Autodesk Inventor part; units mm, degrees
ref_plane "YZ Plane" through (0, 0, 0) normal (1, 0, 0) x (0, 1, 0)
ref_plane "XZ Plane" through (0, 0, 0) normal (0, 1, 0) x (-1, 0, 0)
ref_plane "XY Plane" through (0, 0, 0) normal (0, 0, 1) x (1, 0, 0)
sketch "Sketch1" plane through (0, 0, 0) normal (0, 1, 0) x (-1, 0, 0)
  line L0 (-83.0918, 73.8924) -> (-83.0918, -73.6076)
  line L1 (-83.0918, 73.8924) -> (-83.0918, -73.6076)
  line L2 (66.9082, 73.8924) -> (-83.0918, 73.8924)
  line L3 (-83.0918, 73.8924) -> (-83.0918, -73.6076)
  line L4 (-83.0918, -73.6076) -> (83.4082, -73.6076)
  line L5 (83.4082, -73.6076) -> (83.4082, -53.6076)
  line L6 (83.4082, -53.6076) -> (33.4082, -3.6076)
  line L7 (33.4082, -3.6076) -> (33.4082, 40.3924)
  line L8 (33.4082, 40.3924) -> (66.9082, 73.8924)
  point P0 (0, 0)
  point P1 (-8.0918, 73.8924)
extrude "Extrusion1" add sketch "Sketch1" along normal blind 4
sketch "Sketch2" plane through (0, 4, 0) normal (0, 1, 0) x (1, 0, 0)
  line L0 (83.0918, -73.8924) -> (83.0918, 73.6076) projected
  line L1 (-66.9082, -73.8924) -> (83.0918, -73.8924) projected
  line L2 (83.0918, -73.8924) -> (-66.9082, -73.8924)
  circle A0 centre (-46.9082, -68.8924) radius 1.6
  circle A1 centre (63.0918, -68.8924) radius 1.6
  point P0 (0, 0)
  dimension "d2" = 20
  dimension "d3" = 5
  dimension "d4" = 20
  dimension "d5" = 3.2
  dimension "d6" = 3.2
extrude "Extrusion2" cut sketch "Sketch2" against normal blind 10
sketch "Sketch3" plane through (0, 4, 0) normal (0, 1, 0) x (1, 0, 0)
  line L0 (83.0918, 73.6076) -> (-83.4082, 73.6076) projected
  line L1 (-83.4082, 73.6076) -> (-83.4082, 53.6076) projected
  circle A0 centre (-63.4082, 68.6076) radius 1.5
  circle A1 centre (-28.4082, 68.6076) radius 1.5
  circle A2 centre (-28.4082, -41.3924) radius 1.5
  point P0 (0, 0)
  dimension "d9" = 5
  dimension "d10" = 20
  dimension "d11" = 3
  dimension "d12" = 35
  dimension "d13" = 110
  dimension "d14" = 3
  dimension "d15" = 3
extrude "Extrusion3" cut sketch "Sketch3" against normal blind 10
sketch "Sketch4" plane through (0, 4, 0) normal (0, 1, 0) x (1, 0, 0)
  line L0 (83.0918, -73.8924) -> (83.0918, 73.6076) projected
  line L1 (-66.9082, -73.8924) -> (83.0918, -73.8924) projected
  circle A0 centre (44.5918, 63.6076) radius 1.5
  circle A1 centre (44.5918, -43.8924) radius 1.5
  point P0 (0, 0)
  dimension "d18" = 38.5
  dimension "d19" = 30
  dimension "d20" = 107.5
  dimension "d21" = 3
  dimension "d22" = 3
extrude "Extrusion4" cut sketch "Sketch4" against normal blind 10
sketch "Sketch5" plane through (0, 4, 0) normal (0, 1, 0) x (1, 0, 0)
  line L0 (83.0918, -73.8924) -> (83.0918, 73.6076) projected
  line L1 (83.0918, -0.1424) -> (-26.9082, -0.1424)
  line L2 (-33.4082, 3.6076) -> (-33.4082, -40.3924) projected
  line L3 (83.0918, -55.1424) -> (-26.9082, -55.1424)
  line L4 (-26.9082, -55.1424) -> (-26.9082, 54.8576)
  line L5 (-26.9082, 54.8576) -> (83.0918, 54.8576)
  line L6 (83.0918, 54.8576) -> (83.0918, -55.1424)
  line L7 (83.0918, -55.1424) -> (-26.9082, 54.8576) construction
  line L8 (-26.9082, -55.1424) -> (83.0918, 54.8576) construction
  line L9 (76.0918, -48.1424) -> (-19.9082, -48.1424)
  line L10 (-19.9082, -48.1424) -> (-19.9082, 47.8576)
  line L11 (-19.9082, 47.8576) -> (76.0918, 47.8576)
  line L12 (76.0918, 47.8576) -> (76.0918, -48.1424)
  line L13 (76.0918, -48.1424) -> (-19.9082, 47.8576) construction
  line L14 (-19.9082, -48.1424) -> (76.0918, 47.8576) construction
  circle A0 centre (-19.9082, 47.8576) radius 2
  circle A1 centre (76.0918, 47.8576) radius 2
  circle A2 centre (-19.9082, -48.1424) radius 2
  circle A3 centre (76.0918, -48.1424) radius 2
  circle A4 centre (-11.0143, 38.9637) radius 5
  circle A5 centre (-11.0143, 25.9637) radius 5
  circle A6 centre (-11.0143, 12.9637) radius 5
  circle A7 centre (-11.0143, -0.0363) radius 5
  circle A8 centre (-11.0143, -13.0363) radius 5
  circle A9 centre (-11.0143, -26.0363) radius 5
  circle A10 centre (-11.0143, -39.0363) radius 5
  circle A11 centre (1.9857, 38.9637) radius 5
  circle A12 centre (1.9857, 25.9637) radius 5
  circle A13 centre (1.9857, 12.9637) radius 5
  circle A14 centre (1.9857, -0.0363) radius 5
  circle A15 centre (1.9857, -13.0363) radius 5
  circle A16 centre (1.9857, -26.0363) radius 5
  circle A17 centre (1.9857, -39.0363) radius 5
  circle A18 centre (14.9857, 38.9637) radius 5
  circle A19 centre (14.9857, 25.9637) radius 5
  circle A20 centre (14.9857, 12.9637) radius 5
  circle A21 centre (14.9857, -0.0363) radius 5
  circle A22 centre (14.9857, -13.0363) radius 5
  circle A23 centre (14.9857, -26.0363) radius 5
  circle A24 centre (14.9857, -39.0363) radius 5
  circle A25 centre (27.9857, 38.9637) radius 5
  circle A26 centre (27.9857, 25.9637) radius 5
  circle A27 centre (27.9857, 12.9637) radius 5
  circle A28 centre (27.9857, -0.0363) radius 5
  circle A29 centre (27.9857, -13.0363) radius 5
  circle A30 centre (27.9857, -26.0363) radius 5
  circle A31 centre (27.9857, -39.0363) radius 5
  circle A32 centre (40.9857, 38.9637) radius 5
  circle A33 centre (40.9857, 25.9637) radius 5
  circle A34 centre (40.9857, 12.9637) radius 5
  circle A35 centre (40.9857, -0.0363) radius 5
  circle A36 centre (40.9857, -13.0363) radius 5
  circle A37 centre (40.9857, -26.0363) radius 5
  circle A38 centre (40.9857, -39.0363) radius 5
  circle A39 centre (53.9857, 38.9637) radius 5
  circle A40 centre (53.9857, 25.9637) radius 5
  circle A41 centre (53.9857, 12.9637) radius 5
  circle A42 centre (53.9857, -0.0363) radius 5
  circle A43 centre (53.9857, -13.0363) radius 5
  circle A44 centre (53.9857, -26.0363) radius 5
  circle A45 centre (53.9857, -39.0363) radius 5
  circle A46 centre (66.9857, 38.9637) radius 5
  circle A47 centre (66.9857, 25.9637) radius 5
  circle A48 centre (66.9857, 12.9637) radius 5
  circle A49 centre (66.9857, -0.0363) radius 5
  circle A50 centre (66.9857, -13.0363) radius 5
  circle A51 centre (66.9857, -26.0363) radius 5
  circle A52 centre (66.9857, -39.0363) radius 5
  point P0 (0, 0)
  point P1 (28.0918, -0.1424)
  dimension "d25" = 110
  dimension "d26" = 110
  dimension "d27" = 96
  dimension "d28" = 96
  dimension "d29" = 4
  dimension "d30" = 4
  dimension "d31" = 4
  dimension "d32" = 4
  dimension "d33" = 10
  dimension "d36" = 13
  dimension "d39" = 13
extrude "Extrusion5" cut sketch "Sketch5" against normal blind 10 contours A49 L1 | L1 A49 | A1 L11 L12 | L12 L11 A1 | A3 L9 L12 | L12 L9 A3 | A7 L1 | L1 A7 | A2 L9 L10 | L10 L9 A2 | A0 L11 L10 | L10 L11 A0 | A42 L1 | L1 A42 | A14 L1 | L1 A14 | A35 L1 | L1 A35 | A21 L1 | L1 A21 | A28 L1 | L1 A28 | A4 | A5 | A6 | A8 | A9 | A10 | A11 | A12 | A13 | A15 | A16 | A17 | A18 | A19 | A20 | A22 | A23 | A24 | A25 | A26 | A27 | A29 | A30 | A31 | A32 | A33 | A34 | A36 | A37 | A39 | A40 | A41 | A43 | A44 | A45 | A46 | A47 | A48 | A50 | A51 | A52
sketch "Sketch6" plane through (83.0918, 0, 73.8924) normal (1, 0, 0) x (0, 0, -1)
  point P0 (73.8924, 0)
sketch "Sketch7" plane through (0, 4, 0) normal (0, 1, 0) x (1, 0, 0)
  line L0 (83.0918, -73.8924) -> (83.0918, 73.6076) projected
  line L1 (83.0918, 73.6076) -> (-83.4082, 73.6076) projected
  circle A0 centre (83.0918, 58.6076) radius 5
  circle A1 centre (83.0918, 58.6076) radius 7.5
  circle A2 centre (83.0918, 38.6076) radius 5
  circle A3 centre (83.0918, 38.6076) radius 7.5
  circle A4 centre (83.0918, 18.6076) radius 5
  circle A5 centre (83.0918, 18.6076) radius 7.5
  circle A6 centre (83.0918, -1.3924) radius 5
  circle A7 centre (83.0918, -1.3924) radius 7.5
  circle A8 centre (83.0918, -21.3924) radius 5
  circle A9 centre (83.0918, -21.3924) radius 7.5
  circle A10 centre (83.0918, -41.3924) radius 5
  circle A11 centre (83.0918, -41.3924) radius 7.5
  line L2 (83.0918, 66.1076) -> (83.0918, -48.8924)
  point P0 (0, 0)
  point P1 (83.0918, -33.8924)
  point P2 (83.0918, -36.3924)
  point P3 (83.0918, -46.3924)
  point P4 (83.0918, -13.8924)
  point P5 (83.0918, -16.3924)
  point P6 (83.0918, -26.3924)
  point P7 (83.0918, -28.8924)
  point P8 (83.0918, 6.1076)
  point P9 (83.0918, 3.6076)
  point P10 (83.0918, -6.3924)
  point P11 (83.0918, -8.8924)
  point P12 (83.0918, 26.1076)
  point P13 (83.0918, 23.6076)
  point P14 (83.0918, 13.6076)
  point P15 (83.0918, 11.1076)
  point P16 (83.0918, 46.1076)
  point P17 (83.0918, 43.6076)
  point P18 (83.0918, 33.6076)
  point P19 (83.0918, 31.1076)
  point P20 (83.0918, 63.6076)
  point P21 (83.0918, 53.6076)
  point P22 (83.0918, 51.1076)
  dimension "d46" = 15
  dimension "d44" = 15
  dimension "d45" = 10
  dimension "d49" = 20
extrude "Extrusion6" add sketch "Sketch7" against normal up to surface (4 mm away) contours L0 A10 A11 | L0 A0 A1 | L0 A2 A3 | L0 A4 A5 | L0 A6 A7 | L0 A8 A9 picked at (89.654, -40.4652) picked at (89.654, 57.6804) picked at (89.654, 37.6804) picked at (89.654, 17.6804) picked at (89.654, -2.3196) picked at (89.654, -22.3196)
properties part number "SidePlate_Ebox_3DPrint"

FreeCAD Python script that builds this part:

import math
import FreeCAD as App
import Part
import Sketcher
Q = App.Units.Quantity


def add_polygon(sketch, points):
    """Adds a closed chain of lines whose ends are joined by coincident constraints."""
    first, n = sketch.GeometryCount, len(points)
    for a, b in zip(points, points[1:] + points[:1]):
        sketch.addGeometry(Part.LineSegment(App.Vector(*a, 0), App.Vector(*b, 0)), False)
    for i in range(n):
        sketch.addConstraint(Sketcher.Constraint("Coincident", first + i, 2, first + (i + 1) % n, 1))

doc = App.newDocument("Part")
body = doc.addObject("PartDesign::Body", "Body")

sketch1 = body.newObject("Sketcher::SketchObject", "Sketch")
sketch1.AttachmentSupport = (doc.getObject("XZ_Plane"), [""])
sketch1.MapMode = "FlatFace"
add_polygon(sketch1, [(-66.9082, 73.8924), (83.0918, 73.8924), (83.0918, -73.6076), (-83.4082, -73.6076), (-83.4082, -53.6076), (-33.4082, -3.6076), (-33.4082, 40.3924)])
sketch1.addConstraint(Sketcher.Constraint("Horizontal", 0))
sketch1.addConstraint(Sketcher.Constraint("Vertical", 1))
sketch1.addConstraint(Sketcher.Constraint("Horizontal", 2))
sketch1.addConstraint(Sketcher.Constraint("Vertical", 3))
sketch1.addConstraint(Sketcher.Constraint("Vertical", 5))
sketch1.addConstraint(Sketcher.Constraint("Perpendicular", 4, 6))
sketch1.addConstraint(Sketcher.Constraint("DistanceX", 0, 1, 0, 2, Q("150 mm")))
sketch1.addConstraint(Sketcher.Constraint("DistanceY", 3, 1, 3, 2, Q("20 mm")))
sketch1.addConstraint(Sketcher.Constraint("DistanceY", 5, 1, 5, 2, Q("44 mm")))
sketch1.addConstraint(Sketcher.Constraint("Angle", 4, Q("45 deg")))
sketch1.addConstraint(Sketcher.Constraint("DistanceX", 2, 2, 2, 1, Q("166.5 mm")))
sketch1.addConstraint(Sketcher.Constraint("DistanceY", 1, 2, 1, 1, Q("147.5 mm")))
sketch1.addConstraint(Sketcher.Constraint("DistanceX", -1, 1, 0, 2, Q("83.0918 mm")))
sketch1.addConstraint(Sketcher.Constraint("DistanceY", -1, 1, 0, 2, Q("73.8924 mm")))
pad1 = body.newObject("PartDesign::Pad", "Pad")
pad1.Profile = sketch1
pad1.Length = 4
pad1.Reversed = True

sketch2 = body.newObject("Sketcher::SketchObject", "Sketch001")
sketch2.AttachmentSupport = (doc.getObject("XZ_Plane"), [""])
sketch2.MapMode = "FlatFace"
sketch2.AttachmentOffset = App.Placement(App.Vector(0, 0, -4), App.Rotation())
sketch2.addGeometry(Part.Circle(App.Vector(-46.9082, 68.8924, 0), App.Vector(0, 0, 1), 1.6), False)
sketch2.addGeometry(Part.Circle(App.Vector(63.0918, 68.8924, 0), App.Vector(0, 0, 1), 1.6), False)
sketch2.addConstraint(Sketcher.Constraint("Equal", 0, 1))
sketch2.addConstraint(Sketcher.Constraint("Horizontal", 0, 3, 1, 3))
sketch2.addConstraint(Sketcher.Constraint("Diameter", 0, Q("3.2 mm")))
sketch2.addConstraint(Sketcher.Constraint("DistanceX", 0, 3, 1, 3, Q("110 mm")))
sketch2.addConstraint(Sketcher.Constraint("DistanceX", 0, 3, -1, 1, Q("46.9082 mm")))
sketch2.addConstraint(Sketcher.Constraint("DistanceY", -1, 1, 0, 3, Q("68.8924 mm")))
pocket1 = body.newObject("PartDesign::Pocket", "Pocket")
pocket1.Profile = sketch2
pocket1.Length = 10
pocket1.Reversed = True

sketch3 = body.newObject("Sketcher::SketchObject", "Sketch002")
sketch3.AttachmentSupport = (doc.getObject("XZ_Plane"), [""])
sketch3.MapMode = "FlatFace"
sketch3.AttachmentOffset = App.Placement(App.Vector(0, 0, -4), App.Rotation())
sketch3.addGeometry(Part.Circle(App.Vector(-63.4082, -68.6076, 0), App.Vector(0, 0, 1), 1.5), False)
sketch3.addGeometry(Part.Circle(App.Vector(-28.4082, -68.6076, 0), App.Vector(0, 0, 1), 1.5), False)
sketch3.addGeometry(Part.Circle(App.Vector(-28.4082, 41.3924, 0), App.Vector(0, 0, 1), 1.5), False)
sketch3.addConstraint(Sketcher.Constraint("Equal", 0, 1))
sketch3.addConstraint(Sketcher.Constraint("Equal", 1, 2))
sketch3.addConstraint(Sketcher.Constraint("Horizontal", 0, 3, 1, 3))
sketch3.addConstraint(Sketcher.Constraint("Vertical", 1, 3, 2, 3))
sketch3.addConstraint(Sketcher.Constraint("Diameter", 0, Q("3 mm")))
sketch3.addConstraint(Sketcher.Constraint("DistanceX", 0, 3, 1, 3, Q("35 mm")))
sketch3.addConstraint(Sketcher.Constraint("DistanceY", 1, 3, 2, 3, Q("110 mm")))
sketch3.addConstraint(Sketcher.Constraint("DistanceX", 0, 3, -1, 1, Q("63.4082 mm")))
sketch3.addConstraint(Sketcher.Constraint("DistanceY", 0, 3, -1, 1, Q("68.6076 mm")))
pocket2 = body.newObject("PartDesign::Pocket", "Pocket001")
pocket2.Profile = sketch3
pocket2.Length = 10
pocket2.Reversed = True

sketch4 = body.newObject("Sketcher::SketchObject", "Sketch003")
sketch4.AttachmentSupport = (doc.getObject("XZ_Plane"), [""])
sketch4.MapMode = "FlatFace"
sketch4.AttachmentOffset = App.Placement(App.Vector(0, 0, -4), App.Rotation())
sketch4.addGeometry(Part.Circle(App.Vector(44.5918, -63.6076, 0), App.Vector(0, 0, 1), 1.5), False)
sketch4.addGeometry(Part.Circle(App.Vector(44.5918, 43.8924, 0), App.Vector(0, 0, 1), 1.5), False)
sketch4.addConstraint(Sketcher.Constraint("Equal", 0, 1))
sketch4.addConstraint(Sketcher.Constraint("Vertical", 0, 3, 1, 3))
sketch4.addConstraint(Sketcher.Constraint("Diameter", 0, Q("3 mm")))
sketch4.addConstraint(Sketcher.Constraint("DistanceY", 0, 3, 1, 3, Q("107.5 mm")))
sketch4.addConstraint(Sketcher.Constraint("DistanceX", -1, 1, 0, 3, Q("44.5918 mm")))
sketch4.addConstraint(Sketcher.Constraint("DistanceY", 0, 3, -1, 1, Q("63.6076 mm")))
pocket3 = body.newObject("PartDesign::Pocket", "Pocket002")
pocket3.Profile = sketch4
pocket3.Length = 10
pocket3.Reversed = True

sketch5 = body.newObject("Sketcher::SketchObject", "Sketch004")
sketch5.AttachmentSupport = (doc.getObject("XZ_Plane"), [""])
sketch5.MapMode = "FlatFace"
sketch5.AttachmentOffset = App.Placement(App.Vector(0, 0, -4), App.Rotation())
sketch5.addGeometry(Part.Circle(App.Vector(66.9857, 0.0363, 0), App.Vector(0, 0, 1), 5), False)
sketch5.addGeometry(Part.Circle(App.Vector(76.0918, -47.8576, 0), App.Vector(0, 0, 1), 2), False)
sketch5.addGeometry(Part.Circle(App.Vector(76.0918, 48.1424, 0), App.Vector(0, 0, 1), 2), False)
sketch5.addGeometry(Part.Circle(App.Vector(-11.0143, 0.0363, 0), App.Vector(0, 0, 1), 5), False)
sketch5.addGeometry(Part.Circle(App.Vector(-19.9082, 48.1424, 0), App.Vector(0, 0, 1), 2), False)
sketch5.addGeometry(Part.Circle(App.Vector(-19.9082, -47.8576, 0), App.Vector(0, 0, 1), 2), False)
sketch5.addGeometry(Part.Circle(App.Vector(53.9857, 0.0363, 0), App.Vector(0, 0, 1), 5), False)
sketch5.addGeometry(Part.Circle(App.Vector(1.9857, 0.0363, 0), App.Vector(0, 0, 1), 5), False)
sketch5.addGeometry(Part.Circle(App.Vector(40.9857, 0.0363, 0), App.Vector(0, 0, 1), 5), False)
sketch5.addGeometry(Part.Circle(App.Vector(14.9857, 0.0363, 0), App.Vector(0, 0, 1), 5), False)
sketch5.addGeometry(Part.Circle(App.Vector(27.9857, 0.0363, 0), App.Vector(0, 0, 1), 5), False)
sketch5.addGeometry(Part.Circle(App.Vector(-11.0143, -38.9637, 0), App.Vector(0, 0, 1), 5), False)
sketch5.addGeometry(Part.Circle(App.Vector(-11.0143, -25.9637, 0), App.Vector(0, 0, 1), 5), False)
sketch5.addGeometry(Part.Circle(App.Vector(-11.0143, -12.9637, 0), App.Vector(0, 0, 1), 5), False)
sketch5.addGeometry(Part.Circle(App.Vector(-11.0143, 13.0363, 0), App.Vector(0, 0, 1), 5), False)
sketch5.addGeometry(Part.Circle(App.Vector(-11.0143, 26.0363, 0), App.Vector(0, 0, 1), 5), False)
sketch5.addGeometry(Part.Circle(App.Vector(-11.0143, 39.0363, 0), App.Vector(0, 0, 1), 5), False)
sketch5.addGeometry(Part.Circle(App.Vector(1.9857, -38.9637, 0), App.Vector(0, 0, 1), 5), False)
sketch5.addGeometry(Part.Circle(App.Vector(1.9857, -25.9637, 0), App.Vector(0, 0, 1), 5), False)
sketch5.addGeometry(Part.Circle(App.Vector(1.9857, -12.9637, 0), App.Vector(0, 0, 1), 5), False)
sketch5.addGeometry(Part.Circle(App.Vector(1.9857, 13.0363, 0), App.Vector(0, 0, 1), 5), False)
sketch5.addGeometry(Part.Circle(App.Vector(1.9857, 26.0363, 0), App.Vector(0, 0, 1), 5), False)
sketch5.addGeometry(Part.Circle(App.Vector(1.9857, 39.0363, 0), App.Vector(0, 0, 1), 5), False)
sketch5.addGeometry(Part.Circle(App.Vector(14.9857, -38.9637, 0), App.Vector(0, 0, 1), 5), False)
sketch5.addGeometry(Part.Circle(App.Vector(14.9857, -25.9637, 0), App.Vector(0, 0, 1), 5), False)
sketch5.addGeometry(Part.Circle(App.Vector(14.9857, -12.9637, 0), App.Vector(0, 0, 1), 5), False)
sketch5.addGeometry(Part.Circle(App.Vector(14.9857, 13.0363, 0), App.Vector(0, 0, 1), 5), False)
sketch5.addGeometry(Part.Circle(App.Vector(14.9857, 26.0363, 0), App.Vector(0, 0, 1), 5), False)
sketch5.addGeometry(Part.Circle(App.Vector(14.9857, 39.0363, 0), App.Vector(0, 0, 1), 5), False)
sketch5.addGeometry(Part.Circle(App.Vector(27.9857, -38.9637, 0), App.Vector(0, 0, 1), 5), False)
sketch5.addGeometry(Part.Circle(App.Vector(27.9857, -25.9637, 0), App.Vector(0, 0, 1), 5), False)
sketch5.addGeometry(Part.Circle(App.Vector(27.9857, -12.9637, 0), App.Vector(0, 0, 1), 5), False)
sketch5.addGeometry(Part.Circle(App.Vector(27.9857, 13.0363, 0), App.Vector(0, 0, 1), 5), False)
sketch5.addGeometry(Part.Circle(App.Vector(27.9857, 26.0363, 0), App.Vector(0, 0, 1), 5), False)
sketch5.addGeometry(Part.Circle(App.Vector(27.9857, 39.0363, 0), App.Vector(0, 0, 1), 5), False)
sketch5.addGeometry(Part.Circle(App.Vector(40.9857, -38.9637, 0), App.Vector(0, 0, 1), 5), False)
sketch5.addGeometry(Part.Circle(App.Vector(40.9857, -25.9637, 0), App.Vector(0, 0, 1), 5), False)
sketch5.addGeometry(Part.Circle(App.Vector(40.9857, -12.9637, 0), App.Vector(0, 0, 1), 5), False)
sketch5.addGeometry(Part.Circle(App.Vector(40.9857, 13.0363, 0), App.Vector(0, 0, 1), 5), False)
sketch5.addGeometry(Part.Circle(App.Vector(40.9857, 26.0363, 0), App.Vector(0, 0, 1), 5), False)
sketch5.addGeometry(Part.Circle(App.Vector(53.9857, -38.9637, 0), App.Vector(0, 0, 1), 5), False)
sketch5.addGeometry(Part.Circle(App.Vector(53.9857, -25.9637, 0), App.Vector(0, 0, 1), 5), False)
sketch5.addGeometry(Part.Circle(App.Vector(53.9857, -12.9637, 0), App.Vector(0, 0, 1), 5), False)
sketch5.addGeometry(Part.Circle(App.Vector(53.9857, 13.0363, 0), App.Vector(0, 0, 1), 5), False)
sketch5.addGeometry(Part.Circle(App.Vector(53.9857, 26.0363, 0), App.Vector(0, 0, 1), 5), False)
sketch5.addGeometry(Part.Circle(App.Vector(53.9857, 39.0363, 0), App.Vector(0, 0, 1), 5), False)
sketch5.addGeometry(Part.Circle(App.Vector(66.9857, -38.9637, 0), App.Vector(0, 0, 1), 5), False)
sketch5.addGeometry(Part.Circle(App.Vector(66.9857, -25.9637, 0), App.Vector(0, 0, 1), 5), False)
sketch5.addGeometry(Part.Circle(App.Vector(66.9857, -12.9637, 0), App.Vector(0, 0, 1), 5), False)
sketch5.addGeometry(Part.Circle(App.Vector(66.9857, 13.0363, 0), App.Vector(0, 0, 1), 5), False)
sketch5.addGeometry(Part.Circle(App.Vector(66.9857, 26.0363, 0), App.Vector(0, 0, 1), 5), False)
sketch5.addGeometry(Part.Circle(App.Vector(66.9857, 39.0363, 0), App.Vector(0, 0, 1), 5), False)
sketch5.addConstraint(Sketcher.Constraint("Equal", 1, 2))
sketch5.addConstraint(Sketcher.Constraint("Equal", 0, 3))
sketch5.addConstraint(Sketcher.Constraint("Equal", 2, 4))
sketch5.addConstraint(Sketcher.Constraint("Equal", 4, 5))
sketch5.addConstraint(Sketcher.Constraint("Equal", 3, 6))
sketch5.addConstraint(Sketcher.Constraint("Equal", 6, 7))
sketch5.addConstraint(Sketcher.Constraint("Equal", 7, 8))
sketch5.addConstraint(Sketcher.Constraint("Equal", 8, 9))
sketch5.addConstraint(Sketcher.Constraint("Equal", 9, 10))
sketch5.addConstraint(Sketcher.Constraint("Equal", 10, 11))
sketch5.addConstraint(Sketcher.Constraint("Equal", 11, 12))
sketch5.addConstraint(Sketcher.Constraint("Equal", 12, 13))
sketch5.addConstraint(Sketcher.Constraint("Equal", 13, 14))
sketch5.addConstraint(Sketcher.Constraint("Equal", 14, 15))
sketch5.addConstraint(Sketcher.Constraint("Equal", 15, 16))
sketch5.addConstraint(Sketcher.Constraint("Equal", 16, 17))
sketch5.addConstraint(Sketcher.Constraint("Equal", 17, 18))
sketch5.addConstraint(Sketcher.Constraint("Equal", 18, 19))
sketch5.addConstraint(Sketcher.Constraint("Equal", 19, 20))
sketch5.addConstraint(Sketcher.Constraint("Equal", 20, 21))
sketch5.addConstraint(Sketcher.Constraint("Equal", 21, 22))
sketch5.addConstraint(Sketcher.Constraint("Equal", 22, 23))
sketch5.addConstraint(Sketcher.Constraint("Equal", 23, 24))
sketch5.addConstraint(Sketcher.Constraint("Equal", 24, 25))
sketch5.addConstraint(Sketcher.Constraint("Equal", 25, 26))
sketch5.addConstraint(Sketcher.Constraint("Equal", 26, 27))
sketch5.addConstraint(Sketcher.Constraint("Equal", 27, 28))
sketch5.addConstraint(Sketcher.Constraint("Equal", 28, 29))
sketch5.addConstraint(Sketcher.Constraint("Equal", 29, 30))
sketch5.addConstraint(Sketcher.Constraint("Equal", 30, 31))
sketch5.addConstraint(Sketcher.Constraint("Equal", 31, 32))
sketch5.addConstraint(Sketcher.Constraint("Equal", 32, 33))
sketch5.addConstraint(Sketcher.Constraint("Equal", 33, 34))
sketch5.addConstraint(Sketcher.Constraint("Equal", 34, 35))
sketch5.addConstraint(Sketcher.Constraint("Equal", 35, 36))
sketch5.addConstraint(Sketcher.Constraint("Equal", 36, 37))
sketch5.addConstraint(Sketcher.Constraint("Equal", 37, 38))
sketch5.addConstraint(Sketcher.Constraint("Equal", 38, 39))
sketch5.addConstraint(Sketcher.Constraint("Equal", 39, 40))
sketch5.addConstraint(Sketcher.Constraint("Equal", 40, 41))
sketch5.addConstraint(Sketcher.Constraint("Equal", 41, 42))
sketch5.addConstraint(Sketcher.Constraint("Equal", 42, 43))
sketch5.addConstraint(Sketcher.Constraint("Equal", 43, 44))
sketch5.addConstraint(Sketcher.Constraint("Equal", 44, 45))
sketch5.addConstraint(Sketcher.Constraint("Equal", 45, 46))
sketch5.addConstraint(Sketcher.Constraint("Equal", 46, 47))
sketch5.addConstraint(Sketcher.Constraint("Equal", 47, 48))
sketch5.addConstraint(Sketcher.Constraint("Equal", 48, 49))
sketch5.addConstraint(Sketcher.Constraint("Equal", 49, 50))
sketch5.addConstraint(Sketcher.Constraint("Equal", 50, 51))
sketch5.addConstraint(Sketcher.Constraint("Horizontal", 0, 3, 3, 3))
sketch5.addConstraint(Sketcher.Constraint("Horizontal", 2, 3, 4, 3))
sketch5.addConstraint(Sketcher.Constraint("Horizontal", 1, 3, 5, 3))
sketch5.addConstraint(Sketcher.Constraint("Horizontal", 3, 3, 6, 3))
sketch5.addConstraint(Sketcher.Constraint("Horizontal", 6, 3, 7, 3))
sketch5.addConstraint(Sketcher.Constraint("Horizontal", 7, 3, 8, 3))
sketch5.addConstraint(Sketcher.Constraint("Horizontal", 8, 3, 9, 3))
sketch5.addConstraint(Sketcher.Constraint("Horizontal", 9, 3, 10, 3))
sketch5.addConstraint(Sketcher.Constraint("Horizontal", 11, 3, 17, 3))
sketch5.addConstraint(Sketcher.Constraint("Horizontal", 12, 3, 18, 3))
sketch5.addConstraint(Sketcher.Constraint("Horizontal", 13, 3, 19, 3))
sketch5.addConstraint(Sketcher.Constraint("Horizontal", 14, 3, 20, 3))
sketch5.addConstraint(Sketcher.Constraint("Horizontal", 15, 3, 21, 3))
sketch5.addConstraint(Sketcher.Constraint("Horizontal", 16, 3, 22, 3))
sketch5.addConstraint(Sketcher.Constraint("Horizontal", 17, 3, 23, 3))
sketch5.addConstraint(Sketcher.Constraint("Horizontal", 18, 3, 24, 3))
sketch5.addConstraint(Sketcher.Constraint("Horizontal", 19, 3, 25, 3))
sketch5.addConstraint(Sketcher.Constraint("Horizontal", 20, 3, 26, 3))
sketch5.addConstraint(Sketcher.Constraint("Horizontal", 21, 3, 27, 3))
sketch5.addConstraint(Sketcher.Constraint("Horizontal", 22, 3, 28, 3))
sketch5.addConstraint(Sketcher.Constraint("Horizontal", 23, 3, 29, 3))
sketch5.addConstraint(Sketcher.Constraint("Horizontal", 24, 3, 30, 3))
sketch5.addConstraint(Sketcher.Constraint("Horizontal", 25, 3, 31, 3))
sketch5.addConstraint(Sketcher.Constraint("Horizontal", 26, 3, 32, 3))
sketch5.addConstraint(Sketcher.Constraint("Horizontal", 27, 3, 33, 3))
sketch5.addConstraint(Sketcher.Constraint("Horizontal", 28, 3, 34, 3))
sketch5.addConstraint(Sketcher.Constraint("Horizontal", 29, 3, 35, 3))
sketch5.addConstraint(Sketcher.Constraint("Horizontal", 30, 3, 36, 3))
sketch5.addConstraint(Sketcher.Constraint("Horizontal", 31, 3, 37, 3))
sketch5.addConstraint(Sketcher.Constraint("Horizontal", 32, 3, 38, 3))
sketch5.addConstraint(Sketcher.Constraint("Horizontal", 33, 3, 39, 3))
sketch5.addConstraint(Sketcher.Constraint("Horizontal", 35, 3, 40, 3))
sketch5.addConstraint(Sketcher.Constraint("Horizontal", 36, 3, 41, 3))
sketch5.addConstraint(Sketcher.Constraint("Horizontal", 37, 3, 42, 3))
sketch5.addConstraint(Sketcher.Constraint("Horizontal", 38, 3, 43, 3))
sketch5.addConstraint(Sketcher.Constraint("Horizontal", 39, 3, 44, 3))
sketch5.addConstraint(Sketcher.Constraint("Horizontal", 34, 3, 45, 3))
sketch5.addConstraint(Sketcher.Constraint("Horizontal", 40, 3, 46, 3))
sketch5.addConstraint(Sketcher.Constraint("Horizontal", 41, 3, 47, 3))
sketch5.addConstraint(Sketcher.Constraint("Horizontal", 42, 3, 48, 3))
sketch5.addConstraint(Sketcher.Constraint("Horizontal", 43, 3, 49, 3))
sketch5.addConstraint(Sketcher.Constraint("Horizontal", 44, 3, 50, 3))
sketch5.addConstraint(Sketcher.Constraint("Horizontal", 45, 3, 51, 3))
sketch5.addConstraint(Sketcher.Constraint("Vertical", 1, 3, 2, 3))
sketch5.addConstraint(Sketcher.Constraint("Vertical", 4, 3, 5, 3))
sketch5.addConstraint(Sketcher.Constraint("Vertical", 3, 3, 11, 3))
sketch5.addConstraint(Sketcher.Constraint("Vertical", 11, 3, 12, 3))
sketch5.addConstraint(Sketcher.Constraint("Vertical", 12, 3, 13, 3))
sketch5.addConstraint(Sketcher.Constraint("Vertical", 13, 3, 14, 3))
sketch5.addConstraint(Sketcher.Constraint("Vertical", 14, 3, 15, 3))
sketch5.addConstraint(Sketcher.Constraint("Vertical", 15, 3, 16, 3))
sketch5.addConstraint(Sketcher.Constraint("Vertical", 7, 3, 17, 3))
sketch5.addConstraint(Sketcher.Constraint("Vertical", 17, 3, 18, 3))
sketch5.addConstraint(Sketcher.Constraint("Vertical", 18, 3, 19, 3))
sketch5.addConstraint(Sketcher.Constraint("Vertical", 19, 3, 20, 3))
sketch5.addConstraint(Sketcher.Constraint("Vertical", 20, 3, 21, 3))
sketch5.addConstraint(Sketcher.Constraint("Vertical", 21, 3, 22, 3))
sketch5.addConstraint(Sketcher.Constraint("Vertical", 9, 3, 23, 3))
sketch5.addConstraint(Sketcher.Constraint("Vertical", 23, 3, 24, 3))
sketch5.addConstraint(Sketcher.Constraint("Vertical", 24, 3, 25, 3))
sketch5.addConstraint(Sketcher.Constraint("Vertical", 25, 3, 26, 3))
sketch5.addConstraint(Sketcher.Constraint("Vertical", 26, 3, 27, 3))
sketch5.addConstraint(Sketcher.Constraint("Vertical", 27, 3, 28, 3))
sketch5.addConstraint(Sketcher.Constraint("Vertical", 10, 3, 29, 3))
sketch5.addConstraint(Sketcher.Constraint("Vertical", 29, 3, 30, 3))
sketch5.addConstraint(Sketcher.Constraint("Vertical", 30, 3, 31, 3))
sketch5.addConstraint(Sketcher.Constraint("Vertical", 31, 3, 32, 3))
sketch5.addConstraint(Sketcher.Constraint("Vertical", 32, 3, 33, 3))
sketch5.addConstraint(Sketcher.Constraint("Vertical", 33, 3, 34, 3))
sketch5.addConstraint(Sketcher.Constraint("Vertical", 8, 3, 35, 3))
sketch5.addConstraint(Sketcher.Constraint("Vertical", 35, 3, 36, 3))
sketch5.addConstraint(Sketcher.Constraint("Vertical", 36, 3, 37, 3))
sketch5.addConstraint(Sketcher.Constraint("Vertical", 37, 3, 38, 3))
sketch5.addConstraint(Sketcher.Constraint("Vertical", 38, 3, 39, 3))
sketch5.addConstraint(Sketcher.Constraint("Vertical", 6, 3, 40, 3))
sketch5.addConstraint(Sketcher.Constraint("Vertical", 40, 3, 41, 3))
sketch5.addConstraint(Sketcher.Constraint("Vertical", 41, 3, 42, 3))
sketch5.addConstraint(Sketcher.Constraint("Vertical", 42, 3, 43, 3))
sketch5.addConstraint(Sketcher.Constraint("Vertical", 43, 3, 44, 3))
sketch5.addConstraint(Sketcher.Constraint("Vertical", 44, 3, 45, 3))
sketch5.addConstraint(Sketcher.Constraint("Vertical", 0, 3, 46, 3))
sketch5.addConstraint(Sketcher.Constraint("Vertical", 46, 3, 47, 3))
sketch5.addConstraint(Sketcher.Constraint("Vertical", 47, 3, 48, 3))
sketch5.addConstraint(Sketcher.Constraint("Vertical", 48, 3, 49, 3))
sketch5.addConstraint(Sketcher.Constraint("Vertical", 49, 3, 50, 3))
sketch5.addConstraint(Sketcher.Constraint("Vertical", 50, 3, 51, 3))
sketch5.addConstraint(Sketcher.Constraint("Diameter", 0, Q("10 mm")))
sketch5.addConstraint(Sketcher.Constraint("Diameter", 1, Q("4 mm")))
sketch5.addConstraint(Sketcher.Constraint("DistanceY", 1, 3, 2, 3, Q("96 mm")))
sketch5.addConstraint(Sketcher.Constraint("DistanceX", 4, 3, 2, 3, Q("96 mm")))
sketch5.addConstraint(Sketcher.Constraint("DistanceX", 6, 3, 0, 3, Q("13 mm")))
sketch5.addConstraint(Sketcher.Constraint("DistanceX", 3, 3, 7, 3, Q("13 mm")))
sketch5.addConstraint(Sketcher.Constraint("DistanceX", 8, 3, 6, 3, Q("13 mm")))
sketch5.addConstraint(Sketcher.Constraint("DistanceX", 7, 3, 9, 3, Q("13 mm")))
sketch5.addConstraint(Sketcher.Constraint("DistanceX", 10, 3, 8, 3, Q("13 mm")))
sketch5.addConstraint(Sketcher.Constraint("DistanceX", 9, 3, 10, 3, Q("13 mm")))
sketch5.addConstraint(Sketcher.Constraint("DistanceY", 11, 3, 12, 3, Q("13 mm")))
sketch5.addConstraint(Sketcher.Constraint("DistanceY", 13, 3, 3, 3, Q("13 mm")))
sketch5.addConstraint(Sketcher.Constraint("DistanceY", 12, 3, 13, 3, Q("13 mm")))
sketch5.addConstraint(Sketcher.Constraint("DistanceY", 3, 3, 14, 3, Q("13 mm")))
sketch5.addConstraint(Sketcher.Constraint("DistanceY", 14, 3, 15, 3, Q("13 mm")))
sketch5.addConstraint(Sketcher.Constraint("DistanceY", 15, 3, 16, 3, Q("13 mm")))
sketch5.addConstraint(Sketcher.Constraint("DistanceX", 0, 3, 1, 3, Q("9.106 mm")))
sketch5.addConstraint(Sketcher.Constraint("DistanceY", 1, 3, 0, 3, Q("47.894 mm")))
sketch5.addConstraint(Sketcher.Constraint("DistanceX", -1, 1, 0, 3, Q("66.9857 mm")))
sketch5.addConstraint(Sketcher.Constraint("DistanceY", -1, 1, 0, 3, Q("0.0363 mm")))
pocket4 = body.newObject("PartDesign::Pocket", "Pocket003")
pocket4.Profile = sketch5
pocket4.Length = 10
pocket4.Reversed = True

sketch6 = body.newObject("Sketcher::SketchObject", "Sketch005")
sketch6.AttachmentSupport = (doc.getObject("XZ_Plane"), [""])
sketch6.MapMode = "FlatFace"
sketch6.AttachmentOffset = App.Placement(App.Vector(0, 0, -4), App.Rotation())
sketch6.addGeometry(Part.LineSegment(App.Vector(83.0918, 46.3924, 0), App.Vector(83.0918, 48.8924, 0)), False)
sketch6.addGeometry(Part.ArcOfCircle(Part.Circle(App.Vector(83.0918, 41.3924, 0), App.Vector(0, 0, 1), 7.5), math.radians(-90), math.radians(90)), False)
sketch6.addGeometry(Part.LineSegment(App.Vector(83.0918, 33.8924, 0), App.Vector(83.0918, 36.3924, 0)), False)
sketch6.addGeometry(Part.ArcOfCircle(Part.Circle(App.Vector(83.0918, 41.3924, 0), App.Vector(0, 0, 1), 5), math.radians(-90), math.radians(90)), False)
sketch6.addGeometry(Part.LineSegment(App.Vector(83.0918, -53.6076, 0), App.Vector(83.0918, -51.1076, 0)), False)
sketch6.addGeometry(Part.ArcOfCircle(Part.Circle(App.Vector(83.0918, -58.6076, 0), App.Vector(0, 0, 1), 7.5), math.radians(-90), math.radians(90)), False)
sketch6.addGeometry(Part.LineSegment(App.Vector(83.0918, -66.1076, 0), App.Vector(83.0918, -63.6076, 0)), False)
sketch6.addGeometry(Part.ArcOfCircle(Part.Circle(App.Vector(83.0918, -58.6076, 0), App.Vector(0, 0, 1), 5), math.radians(-90), math.radians(90)), False)
sketch6.addGeometry(Part.LineSegment(App.Vector(83.0918, -33.6076, 0), App.Vector(83.0918, -31.1076, 0)), False)
sketch6.addGeometry(Part.ArcOfCircle(Part.Circle(App.Vector(83.0918, -38.6076, 0), App.Vector(0, 0, 1), 7.5), math.radians(-90), math.radians(90)), False)
sketch6.addGeometry(Part.LineSegment(App.Vector(83.0918, -46.1076, 0), App.Vector(83.0918, -43.6076, 0)), False)
sketch6.addGeometry(Part.ArcOfCircle(Part.Circle(App.Vector(83.0918, -38.6076, 0), App.Vector(0, 0, 1), 5), math.radians(-90), math.radians(90)), False)
sketch6.addGeometry(Part.LineSegment(App.Vector(83.0918, -13.6076, 0), App.Vector(83.0918, -11.1076, 0)), False)
sketch6.addGeometry(Part.ArcOfCircle(Part.Circle(App.Vector(83.0918, -18.6076, 0), App.Vector(0, 0, 1), 7.5), math.radians(-90), math.radians(90)), False)
sketch6.addGeometry(Part.LineSegment(App.Vector(83.0918, -26.1076, 0), App.Vector(83.0918, -23.6076, 0)), False)
sketch6.addGeometry(Part.ArcOfCircle(Part.Circle(App.Vector(83.0918, -18.6076, 0), App.Vector(0, 0, 1), 5), math.radians(-90), math.radians(90)), False)
sketch6.addGeometry(Part.LineSegment(App.Vector(83.0918, 6.3924, 0), App.Vector(83.0918, 8.8924, 0)), False)
sketch6.addGeometry(Part.ArcOfCircle(Part.Circle(App.Vector(83.0918, 1.3924, 0), App.Vector(0, 0, 1), 7.5), math.radians(-90), math.radians(90)), False)
sketch6.addGeometry(Part.LineSegment(App.Vector(83.0918, -6.1076, 0), App.Vector(83.0918, -3.6076, 0)), False)
sketch6.addGeometry(Part.ArcOfCircle(Part.Circle(App.Vector(83.0918, 1.3924, 0), App.Vector(0, 0, 1), 5), math.radians(-90), math.radians(90)), False)
sketch6.addGeometry(Part.LineSegment(App.Vector(83.0918, 26.3924, 0), App.Vector(83.0918, 28.8924, 0)), False)
sketch6.addGeometry(Part.ArcOfCircle(Part.Circle(App.Vector(83.0918, 21.3924, 0), App.Vector(0, 0, 1), 7.5), math.radians(-90), math.radians(90)), False)
sketch6.addGeometry(Part.LineSegment(App.Vector(83.0918, 13.8924, 0), App.Vector(83.0918, 16.3924, 0)), False)
sketch6.addGeometry(Part.ArcOfCircle(Part.Circle(App.Vector(83.0918, 21.3924, 0), App.Vector(0, 0, 1), 5), math.radians(-90), math.radians(90)), False)
sketch6.addConstraint(Sketcher.Constraint("Coincident", 0, 2, 1, 2))
sketch6.addConstraint(Sketcher.Constraint("Coincident", 1, 1, 2, 1))
sketch6.addConstraint(Sketcher.Constraint("Coincident", 2, 2, 3, 1))
sketch6.addConstraint(Sketcher.Constraint("Coincident", 3, 2, 0, 1))
sketch6.addConstraint(Sketcher.Constraint("Coincident", 4, 2, 5, 2))
sketch6.addConstraint(Sketcher.Constraint("Coincident", 5, 1, 6, 1))
sketch6.addConstraint(Sketcher.Constraint("Coincident", 6, 2, 7, 1))
sketch6.addConstraint(Sketcher.Constraint("Coincident", 7, 2, 4, 1))
sketch6.addConstraint(Sketcher.Constraint("Coincident", 8, 2, 9, 2))
sketch6.addConstraint(Sketcher.Constraint("Coincident", 9, 1, 10, 1))
sketch6.addConstraint(Sketcher.Constraint("Coincident", 10, 2, 11, 1))
sketch6.addConstraint(Sketcher.Constraint("Coincident", 11, 2, 8, 1))
sketch6.addConstraint(Sketcher.Constraint("Coincident", 12, 2, 13, 2))
sketch6.addConstraint(Sketcher.Constraint("Coincident", 13, 1, 14, 1))
sketch6.addConstraint(Sketcher.Constraint("Coincident", 14, 2, 15, 1))
sketch6.addConstraint(Sketcher.Constraint("Coincident", 15, 2, 12, 1))
sketch6.addConstraint(Sketcher.Constraint("Coincident", 16, 2, 17, 2))
sketch6.addConstraint(Sketcher.Constraint("Coincident", 17, 1, 18, 1))
sketch6.addConstraint(Sketcher.Constraint("Coincident", 18, 2, 19, 1))
sketch6.addConstraint(Sketcher.Constraint("Coincident", 19, 2, 16, 1))
sketch6.addConstraint(Sketcher.Constraint("Coincident", 20, 2, 21, 2))
sketch6.addConstraint(Sketcher.Constraint("Coincident", 21, 1, 22, 1))
sketch6.addConstraint(Sketcher.Constraint("Coincident", 22, 2, 23, 1))
sketch6.addConstraint(Sketcher.Constraint("Coincident", 23, 2, 20, 1))
sketch6.addConstraint(Sketcher.Constraint("Vertical", 0))
sketch6.addConstraint(Sketcher.Constraint("Vertical", 2))
sketch6.addConstraint(Sketcher.Constraint("Vertical", 4))
sketch6.addConstraint(Sketcher.Constraint("Vertical", 6))
sketch6.addConstraint(Sketcher.Constraint("Vertical", 8))
sketch6.addConstraint(Sketcher.Constraint("Vertical", 10))
sketch6.addConstraint(Sketcher.Constraint("Vertical", 12))
sketch6.addConstraint(Sketcher.Constraint("Vertical", 14))
sketch6.addConstraint(Sketcher.Constraint("Vertical", 16))
sketch6.addConstraint(Sketcher.Constraint("Vertical", 18))
sketch6.addConstraint(Sketcher.Constraint("Vertical", 20))
sketch6.addConstraint(Sketcher.Constraint("Vertical", 22))
sketch6.addConstraint(Sketcher.Constraint("Coincident", 3, 3, 1, 3))
sketch6.addConstraint(Sketcher.Constraint("Coincident", 7, 3, 5, 3))
sketch6.addConstraint(Sketcher.Constraint("Coincident", 11, 3, 9, 3))
sketch6.addConstraint(Sketcher.Constraint("Coincident", 15, 3, 13, 3))
sketch6.addConstraint(Sketcher.Constraint("Coincident", 19, 3, 17, 3))
sketch6.addConstraint(Sketcher.Constraint("Coincident", 23, 3, 21, 3))
sketch6.addConstraint(Sketcher.Constraint("Equal", 1, 5))
sketch6.addConstraint(Sketcher.Constraint("Equal", 3, 7))
sketch6.addConstraint(Sketcher.Constraint("Equal", 5, 9))
sketch6.addConstraint(Sketcher.Constraint("Equal", 7, 11))
sketch6.addConstraint(Sketcher.Constraint("Equal", 9, 13))
sketch6.addConstraint(Sketcher.Constraint("Equal", 11, 15))
sketch6.addConstraint(Sketcher.Constraint("Equal", 13, 17))
sketch6.addConstraint(Sketcher.Constraint("Equal", 15, 19))
sketch6.addConstraint(Sketcher.Constraint("Equal", 17, 21))
sketch6.addConstraint(Sketcher.Constraint("Equal", 19, 23))
sketch6.addConstraint(Sketcher.Constraint("Vertical", 3, 3, 5, 3))
sketch6.addConstraint(Sketcher.Constraint("Vertical", 7, 3, 9, 3))
sketch6.addConstraint(Sketcher.Constraint("Vertical", 11, 3, 13, 3))
sketch6.addConstraint(Sketcher.Constraint("Vertical", 15, 3, 17, 3))
sketch6.addConstraint(Sketcher.Constraint("Vertical", 19, 3, 21, 3))
sketch6.addConstraint(Sketcher.Constraint("Vertical", 23, 3, 0, 2))
sketch6.addConstraint(Sketcher.Constraint("Vertical", 0, 2, 1, 1))
sketch6.addConstraint(Sketcher.Constraint("Vertical", 3, 2, 4, 2))
sketch6.addConstraint(Sketcher.Constraint("Vertical", 4, 2, 5, 1))
sketch6.addConstraint(Sketcher.Constraint("Vertical", 7, 2, 8, 2))
sketch6.addConstraint(Sketcher.Constraint("Vertical", 8, 2, 9, 1))
sketch6.addConstraint(Sketcher.Constraint("Vertical", 11, 2, 12, 2))
sketch6.addConstraint(Sketcher.Constraint("Vertical", 12, 2, 13, 1))
sketch6.addConstraint(Sketcher.Constraint("Vertical", 15, 2, 16, 2))
sketch6.addConstraint(Sketcher.Constraint("Vertical", 16, 2, 17, 1))
sketch6.addConstraint(Sketcher.Constraint("Vertical", 19, 2, 20, 2))
sketch6.addConstraint(Sketcher.Constraint("Vertical", 20, 2, 21, 1))
sketch6.addConstraint(Sketcher.Constraint("Radius", 3, Q("5 mm")))
sketch6.addConstraint(Sketcher.Constraint("Radius", 1, Q("7.5 mm")))
sketch6.addConstraint(Sketcher.Constraint("DistanceY", 5, 3, 9, 3, Q("20 mm")))
sketch6.addConstraint(Sketcher.Constraint("DistanceY", 9, 3, 13, 3, Q("20 mm")))
sketch6.addConstraint(Sketcher.Constraint("DistanceY", 13, 3, 17, 3, Q("20 mm")))
sketch6.addConstraint(Sketcher.Constraint("DistanceY", 17, 3, 21, 3, Q("20 mm")))
sketch6.addConstraint(Sketcher.Constraint("DistanceY", 21, 3, 1, 3, Q("20 mm")))
sketch6.addConstraint(Sketcher.Constraint("DistanceX", -1, 1, 1, 3, Q("83.0918 mm")))
sketch6.addConstraint(Sketcher.Constraint("DistanceY", -1, 1, 1, 3, Q("41.3924 mm")))
pad2 = body.newObject("PartDesign::Pad", "Pad001")
pad2.Profile = sketch6
pad2.Length = 4

doc.recompute()
